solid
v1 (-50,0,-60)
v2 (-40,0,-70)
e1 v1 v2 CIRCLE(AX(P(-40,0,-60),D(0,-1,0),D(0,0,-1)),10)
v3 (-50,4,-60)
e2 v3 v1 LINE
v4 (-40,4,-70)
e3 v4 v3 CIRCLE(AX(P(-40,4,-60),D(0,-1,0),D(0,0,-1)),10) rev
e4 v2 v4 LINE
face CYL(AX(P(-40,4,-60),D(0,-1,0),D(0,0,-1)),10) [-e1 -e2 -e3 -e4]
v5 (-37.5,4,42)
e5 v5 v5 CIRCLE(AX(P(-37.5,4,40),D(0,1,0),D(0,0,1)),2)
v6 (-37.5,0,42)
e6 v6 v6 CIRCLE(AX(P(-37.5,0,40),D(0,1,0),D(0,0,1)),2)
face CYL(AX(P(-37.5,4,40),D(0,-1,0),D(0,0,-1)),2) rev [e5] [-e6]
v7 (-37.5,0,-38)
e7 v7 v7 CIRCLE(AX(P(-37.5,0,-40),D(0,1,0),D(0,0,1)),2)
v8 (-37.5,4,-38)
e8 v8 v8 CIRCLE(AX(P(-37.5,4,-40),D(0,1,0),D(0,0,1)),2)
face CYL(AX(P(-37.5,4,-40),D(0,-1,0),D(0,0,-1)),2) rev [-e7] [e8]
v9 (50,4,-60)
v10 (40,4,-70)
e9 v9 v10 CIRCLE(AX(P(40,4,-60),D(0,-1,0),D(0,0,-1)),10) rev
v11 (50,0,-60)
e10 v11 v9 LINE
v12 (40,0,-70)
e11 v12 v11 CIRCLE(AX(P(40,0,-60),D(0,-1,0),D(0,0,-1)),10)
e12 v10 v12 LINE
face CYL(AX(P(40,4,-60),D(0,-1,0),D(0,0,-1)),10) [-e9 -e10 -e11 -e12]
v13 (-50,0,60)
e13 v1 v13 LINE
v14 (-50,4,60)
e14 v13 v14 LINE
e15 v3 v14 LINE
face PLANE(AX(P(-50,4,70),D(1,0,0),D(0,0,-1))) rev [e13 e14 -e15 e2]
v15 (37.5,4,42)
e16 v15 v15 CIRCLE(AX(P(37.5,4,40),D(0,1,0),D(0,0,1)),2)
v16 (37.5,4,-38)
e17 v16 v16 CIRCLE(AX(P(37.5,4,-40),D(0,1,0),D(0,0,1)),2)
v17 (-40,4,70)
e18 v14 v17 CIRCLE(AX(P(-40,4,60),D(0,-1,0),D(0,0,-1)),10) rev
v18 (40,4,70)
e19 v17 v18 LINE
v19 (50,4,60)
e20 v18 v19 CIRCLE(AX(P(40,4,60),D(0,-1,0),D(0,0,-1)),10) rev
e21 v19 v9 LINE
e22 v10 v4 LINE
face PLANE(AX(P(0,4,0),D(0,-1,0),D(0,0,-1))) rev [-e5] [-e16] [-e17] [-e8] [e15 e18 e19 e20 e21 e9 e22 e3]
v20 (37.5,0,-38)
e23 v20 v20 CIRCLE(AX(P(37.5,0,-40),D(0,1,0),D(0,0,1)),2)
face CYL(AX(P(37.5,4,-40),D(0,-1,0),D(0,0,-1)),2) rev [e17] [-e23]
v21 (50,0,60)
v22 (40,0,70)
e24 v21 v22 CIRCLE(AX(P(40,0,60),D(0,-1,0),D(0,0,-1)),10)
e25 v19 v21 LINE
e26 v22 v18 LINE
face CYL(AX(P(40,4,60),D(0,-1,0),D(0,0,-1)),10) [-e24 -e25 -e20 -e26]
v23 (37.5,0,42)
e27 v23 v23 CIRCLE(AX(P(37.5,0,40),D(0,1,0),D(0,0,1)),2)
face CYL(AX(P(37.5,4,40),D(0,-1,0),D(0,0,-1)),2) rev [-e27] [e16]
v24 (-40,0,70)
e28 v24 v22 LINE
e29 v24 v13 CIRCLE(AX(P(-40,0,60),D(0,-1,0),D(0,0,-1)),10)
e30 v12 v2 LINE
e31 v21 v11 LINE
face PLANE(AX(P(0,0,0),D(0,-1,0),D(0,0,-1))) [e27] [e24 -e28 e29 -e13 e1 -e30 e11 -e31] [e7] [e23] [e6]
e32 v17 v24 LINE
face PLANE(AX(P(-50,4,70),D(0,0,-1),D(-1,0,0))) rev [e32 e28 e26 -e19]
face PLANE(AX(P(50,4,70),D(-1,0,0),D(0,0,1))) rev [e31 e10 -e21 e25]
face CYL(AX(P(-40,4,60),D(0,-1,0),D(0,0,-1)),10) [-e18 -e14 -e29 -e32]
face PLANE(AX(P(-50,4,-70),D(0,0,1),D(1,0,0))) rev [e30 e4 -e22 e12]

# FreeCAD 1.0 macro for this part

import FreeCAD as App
import Part
import Sketcher

V = App.Vector
Q = App.Units.Quantity


def edges_at(feature, points):
    """Names of the edges that pass closest to the given points."""
    edges = feature.Shape.Edges
    near = lambda p: min(range(len(edges)), key=lambda i: edges[i].distToShape(Part.Vertex(*p))[0])
    return sorted({f"Edge{near(p) + 1}" for p in points})


def add_polygon(sketch, points):
    """Adds a closed chain of lines whose ends are joined by coincident constraints."""
    first, n = sketch.GeometryCount, len(points)
    for a, b in zip(points, points[1:] + points[:1]):
        sketch.addGeometry(Part.LineSegment(App.Vector(*a, 0), App.Vector(*b, 0)), False)
    for i in range(n):
        sketch.addConstraint(Sketcher.Constraint("Coincident", first + i, 2, first + (i + 1) % n, 1))

doc = App.newDocument("Part")
body = doc.addObject("PartDesign::Body", "Body")

# Sketch on XZ plane
sketch1 = doc.addObject("Sketcher::SketchObject", "Sketch")
body.addObject(sketch1)
sketch1.AttachmentSupport = (doc.XZ_Plane, [""])
sketch1.MapMode = "FlatFace"
add_polygon(sketch1, [(-50, -70), (-50, 70), (50, 70), (50, -70)])  # lines 0-3
sketch1.addGeometry(Part.Circle(V(-37.5, 40, 0), V(0, 0, 1), 2), False)  # 4
sketch1.addGeometry(Part.Circle(V(37.5, 40, 0), V(0, 0, 1), 2), False)  # 5
sketch1.addGeometry(Part.Circle(V(-37.5, -40, 0), V(0, 0, 1), 2), False)  # 6
sketch1.addGeometry(Part.Circle(V(37.5, -40, 0), V(0, 0, 1), 2), False)  # 7
sketch1.addConstraint([
    Sketcher.Constraint("Vertical", 0),
    Sketcher.Constraint("Horizontal", 1),
    Sketcher.Constraint("Vertical", 2),
    Sketcher.Constraint("Horizontal", 3),
    Sketcher.Constraint("Equal", 4, 5),
    Sketcher.Constraint("Equal", 5, 6),
    Sketcher.Constraint("Equal", 6, 7),
    Sketcher.Constraint("Symmetric", 5, 3, 6, 3, -1, 1),
    Sketcher.Constraint("Symmetric", 4, 3, 7, 3, -1, 1),
    Sketcher.Constraint("Symmetric", 0, 2, 2, 2, -1, 1),
    Sketcher.Constraint("Symmetric", 4, 3, 5, 3, -2),
    Sketcher.Constraint("Diameter", 4, Q("4 mm")),
    Sketcher.Constraint("DistanceX", 1, 1, 1, 2, Q("100 mm")),
    Sketcher.Constraint("DistanceY", 0, 1, 0, 2, Q("140 mm")),
    Sketcher.Constraint("DistanceY", -1, 1, 4, 3, Q("40 mm")),
    Sketcher.Constraint("DistanceX", 4, 3, 5, 3, Q("75 mm")),
])
pad1 = doc.addObject("PartDesign::Pad", "Pad")
body.addObject(pad1)
pad1.Profile = sketch1
pad1.Length = 4
pad1.Reversed = True
doc.recompute()

fillet = doc.addObject("PartDesign::Fillet", "Fillet")
body.addObject(fillet)
fillet.Base = (pad1, edges_at(pad1, [
    (50, 2, 70),
    (-50, 2, 70),
    (-50, 2, -70),
    (50, 2, -70),
]))
fillet.Radius = 10

doc.recompute()
